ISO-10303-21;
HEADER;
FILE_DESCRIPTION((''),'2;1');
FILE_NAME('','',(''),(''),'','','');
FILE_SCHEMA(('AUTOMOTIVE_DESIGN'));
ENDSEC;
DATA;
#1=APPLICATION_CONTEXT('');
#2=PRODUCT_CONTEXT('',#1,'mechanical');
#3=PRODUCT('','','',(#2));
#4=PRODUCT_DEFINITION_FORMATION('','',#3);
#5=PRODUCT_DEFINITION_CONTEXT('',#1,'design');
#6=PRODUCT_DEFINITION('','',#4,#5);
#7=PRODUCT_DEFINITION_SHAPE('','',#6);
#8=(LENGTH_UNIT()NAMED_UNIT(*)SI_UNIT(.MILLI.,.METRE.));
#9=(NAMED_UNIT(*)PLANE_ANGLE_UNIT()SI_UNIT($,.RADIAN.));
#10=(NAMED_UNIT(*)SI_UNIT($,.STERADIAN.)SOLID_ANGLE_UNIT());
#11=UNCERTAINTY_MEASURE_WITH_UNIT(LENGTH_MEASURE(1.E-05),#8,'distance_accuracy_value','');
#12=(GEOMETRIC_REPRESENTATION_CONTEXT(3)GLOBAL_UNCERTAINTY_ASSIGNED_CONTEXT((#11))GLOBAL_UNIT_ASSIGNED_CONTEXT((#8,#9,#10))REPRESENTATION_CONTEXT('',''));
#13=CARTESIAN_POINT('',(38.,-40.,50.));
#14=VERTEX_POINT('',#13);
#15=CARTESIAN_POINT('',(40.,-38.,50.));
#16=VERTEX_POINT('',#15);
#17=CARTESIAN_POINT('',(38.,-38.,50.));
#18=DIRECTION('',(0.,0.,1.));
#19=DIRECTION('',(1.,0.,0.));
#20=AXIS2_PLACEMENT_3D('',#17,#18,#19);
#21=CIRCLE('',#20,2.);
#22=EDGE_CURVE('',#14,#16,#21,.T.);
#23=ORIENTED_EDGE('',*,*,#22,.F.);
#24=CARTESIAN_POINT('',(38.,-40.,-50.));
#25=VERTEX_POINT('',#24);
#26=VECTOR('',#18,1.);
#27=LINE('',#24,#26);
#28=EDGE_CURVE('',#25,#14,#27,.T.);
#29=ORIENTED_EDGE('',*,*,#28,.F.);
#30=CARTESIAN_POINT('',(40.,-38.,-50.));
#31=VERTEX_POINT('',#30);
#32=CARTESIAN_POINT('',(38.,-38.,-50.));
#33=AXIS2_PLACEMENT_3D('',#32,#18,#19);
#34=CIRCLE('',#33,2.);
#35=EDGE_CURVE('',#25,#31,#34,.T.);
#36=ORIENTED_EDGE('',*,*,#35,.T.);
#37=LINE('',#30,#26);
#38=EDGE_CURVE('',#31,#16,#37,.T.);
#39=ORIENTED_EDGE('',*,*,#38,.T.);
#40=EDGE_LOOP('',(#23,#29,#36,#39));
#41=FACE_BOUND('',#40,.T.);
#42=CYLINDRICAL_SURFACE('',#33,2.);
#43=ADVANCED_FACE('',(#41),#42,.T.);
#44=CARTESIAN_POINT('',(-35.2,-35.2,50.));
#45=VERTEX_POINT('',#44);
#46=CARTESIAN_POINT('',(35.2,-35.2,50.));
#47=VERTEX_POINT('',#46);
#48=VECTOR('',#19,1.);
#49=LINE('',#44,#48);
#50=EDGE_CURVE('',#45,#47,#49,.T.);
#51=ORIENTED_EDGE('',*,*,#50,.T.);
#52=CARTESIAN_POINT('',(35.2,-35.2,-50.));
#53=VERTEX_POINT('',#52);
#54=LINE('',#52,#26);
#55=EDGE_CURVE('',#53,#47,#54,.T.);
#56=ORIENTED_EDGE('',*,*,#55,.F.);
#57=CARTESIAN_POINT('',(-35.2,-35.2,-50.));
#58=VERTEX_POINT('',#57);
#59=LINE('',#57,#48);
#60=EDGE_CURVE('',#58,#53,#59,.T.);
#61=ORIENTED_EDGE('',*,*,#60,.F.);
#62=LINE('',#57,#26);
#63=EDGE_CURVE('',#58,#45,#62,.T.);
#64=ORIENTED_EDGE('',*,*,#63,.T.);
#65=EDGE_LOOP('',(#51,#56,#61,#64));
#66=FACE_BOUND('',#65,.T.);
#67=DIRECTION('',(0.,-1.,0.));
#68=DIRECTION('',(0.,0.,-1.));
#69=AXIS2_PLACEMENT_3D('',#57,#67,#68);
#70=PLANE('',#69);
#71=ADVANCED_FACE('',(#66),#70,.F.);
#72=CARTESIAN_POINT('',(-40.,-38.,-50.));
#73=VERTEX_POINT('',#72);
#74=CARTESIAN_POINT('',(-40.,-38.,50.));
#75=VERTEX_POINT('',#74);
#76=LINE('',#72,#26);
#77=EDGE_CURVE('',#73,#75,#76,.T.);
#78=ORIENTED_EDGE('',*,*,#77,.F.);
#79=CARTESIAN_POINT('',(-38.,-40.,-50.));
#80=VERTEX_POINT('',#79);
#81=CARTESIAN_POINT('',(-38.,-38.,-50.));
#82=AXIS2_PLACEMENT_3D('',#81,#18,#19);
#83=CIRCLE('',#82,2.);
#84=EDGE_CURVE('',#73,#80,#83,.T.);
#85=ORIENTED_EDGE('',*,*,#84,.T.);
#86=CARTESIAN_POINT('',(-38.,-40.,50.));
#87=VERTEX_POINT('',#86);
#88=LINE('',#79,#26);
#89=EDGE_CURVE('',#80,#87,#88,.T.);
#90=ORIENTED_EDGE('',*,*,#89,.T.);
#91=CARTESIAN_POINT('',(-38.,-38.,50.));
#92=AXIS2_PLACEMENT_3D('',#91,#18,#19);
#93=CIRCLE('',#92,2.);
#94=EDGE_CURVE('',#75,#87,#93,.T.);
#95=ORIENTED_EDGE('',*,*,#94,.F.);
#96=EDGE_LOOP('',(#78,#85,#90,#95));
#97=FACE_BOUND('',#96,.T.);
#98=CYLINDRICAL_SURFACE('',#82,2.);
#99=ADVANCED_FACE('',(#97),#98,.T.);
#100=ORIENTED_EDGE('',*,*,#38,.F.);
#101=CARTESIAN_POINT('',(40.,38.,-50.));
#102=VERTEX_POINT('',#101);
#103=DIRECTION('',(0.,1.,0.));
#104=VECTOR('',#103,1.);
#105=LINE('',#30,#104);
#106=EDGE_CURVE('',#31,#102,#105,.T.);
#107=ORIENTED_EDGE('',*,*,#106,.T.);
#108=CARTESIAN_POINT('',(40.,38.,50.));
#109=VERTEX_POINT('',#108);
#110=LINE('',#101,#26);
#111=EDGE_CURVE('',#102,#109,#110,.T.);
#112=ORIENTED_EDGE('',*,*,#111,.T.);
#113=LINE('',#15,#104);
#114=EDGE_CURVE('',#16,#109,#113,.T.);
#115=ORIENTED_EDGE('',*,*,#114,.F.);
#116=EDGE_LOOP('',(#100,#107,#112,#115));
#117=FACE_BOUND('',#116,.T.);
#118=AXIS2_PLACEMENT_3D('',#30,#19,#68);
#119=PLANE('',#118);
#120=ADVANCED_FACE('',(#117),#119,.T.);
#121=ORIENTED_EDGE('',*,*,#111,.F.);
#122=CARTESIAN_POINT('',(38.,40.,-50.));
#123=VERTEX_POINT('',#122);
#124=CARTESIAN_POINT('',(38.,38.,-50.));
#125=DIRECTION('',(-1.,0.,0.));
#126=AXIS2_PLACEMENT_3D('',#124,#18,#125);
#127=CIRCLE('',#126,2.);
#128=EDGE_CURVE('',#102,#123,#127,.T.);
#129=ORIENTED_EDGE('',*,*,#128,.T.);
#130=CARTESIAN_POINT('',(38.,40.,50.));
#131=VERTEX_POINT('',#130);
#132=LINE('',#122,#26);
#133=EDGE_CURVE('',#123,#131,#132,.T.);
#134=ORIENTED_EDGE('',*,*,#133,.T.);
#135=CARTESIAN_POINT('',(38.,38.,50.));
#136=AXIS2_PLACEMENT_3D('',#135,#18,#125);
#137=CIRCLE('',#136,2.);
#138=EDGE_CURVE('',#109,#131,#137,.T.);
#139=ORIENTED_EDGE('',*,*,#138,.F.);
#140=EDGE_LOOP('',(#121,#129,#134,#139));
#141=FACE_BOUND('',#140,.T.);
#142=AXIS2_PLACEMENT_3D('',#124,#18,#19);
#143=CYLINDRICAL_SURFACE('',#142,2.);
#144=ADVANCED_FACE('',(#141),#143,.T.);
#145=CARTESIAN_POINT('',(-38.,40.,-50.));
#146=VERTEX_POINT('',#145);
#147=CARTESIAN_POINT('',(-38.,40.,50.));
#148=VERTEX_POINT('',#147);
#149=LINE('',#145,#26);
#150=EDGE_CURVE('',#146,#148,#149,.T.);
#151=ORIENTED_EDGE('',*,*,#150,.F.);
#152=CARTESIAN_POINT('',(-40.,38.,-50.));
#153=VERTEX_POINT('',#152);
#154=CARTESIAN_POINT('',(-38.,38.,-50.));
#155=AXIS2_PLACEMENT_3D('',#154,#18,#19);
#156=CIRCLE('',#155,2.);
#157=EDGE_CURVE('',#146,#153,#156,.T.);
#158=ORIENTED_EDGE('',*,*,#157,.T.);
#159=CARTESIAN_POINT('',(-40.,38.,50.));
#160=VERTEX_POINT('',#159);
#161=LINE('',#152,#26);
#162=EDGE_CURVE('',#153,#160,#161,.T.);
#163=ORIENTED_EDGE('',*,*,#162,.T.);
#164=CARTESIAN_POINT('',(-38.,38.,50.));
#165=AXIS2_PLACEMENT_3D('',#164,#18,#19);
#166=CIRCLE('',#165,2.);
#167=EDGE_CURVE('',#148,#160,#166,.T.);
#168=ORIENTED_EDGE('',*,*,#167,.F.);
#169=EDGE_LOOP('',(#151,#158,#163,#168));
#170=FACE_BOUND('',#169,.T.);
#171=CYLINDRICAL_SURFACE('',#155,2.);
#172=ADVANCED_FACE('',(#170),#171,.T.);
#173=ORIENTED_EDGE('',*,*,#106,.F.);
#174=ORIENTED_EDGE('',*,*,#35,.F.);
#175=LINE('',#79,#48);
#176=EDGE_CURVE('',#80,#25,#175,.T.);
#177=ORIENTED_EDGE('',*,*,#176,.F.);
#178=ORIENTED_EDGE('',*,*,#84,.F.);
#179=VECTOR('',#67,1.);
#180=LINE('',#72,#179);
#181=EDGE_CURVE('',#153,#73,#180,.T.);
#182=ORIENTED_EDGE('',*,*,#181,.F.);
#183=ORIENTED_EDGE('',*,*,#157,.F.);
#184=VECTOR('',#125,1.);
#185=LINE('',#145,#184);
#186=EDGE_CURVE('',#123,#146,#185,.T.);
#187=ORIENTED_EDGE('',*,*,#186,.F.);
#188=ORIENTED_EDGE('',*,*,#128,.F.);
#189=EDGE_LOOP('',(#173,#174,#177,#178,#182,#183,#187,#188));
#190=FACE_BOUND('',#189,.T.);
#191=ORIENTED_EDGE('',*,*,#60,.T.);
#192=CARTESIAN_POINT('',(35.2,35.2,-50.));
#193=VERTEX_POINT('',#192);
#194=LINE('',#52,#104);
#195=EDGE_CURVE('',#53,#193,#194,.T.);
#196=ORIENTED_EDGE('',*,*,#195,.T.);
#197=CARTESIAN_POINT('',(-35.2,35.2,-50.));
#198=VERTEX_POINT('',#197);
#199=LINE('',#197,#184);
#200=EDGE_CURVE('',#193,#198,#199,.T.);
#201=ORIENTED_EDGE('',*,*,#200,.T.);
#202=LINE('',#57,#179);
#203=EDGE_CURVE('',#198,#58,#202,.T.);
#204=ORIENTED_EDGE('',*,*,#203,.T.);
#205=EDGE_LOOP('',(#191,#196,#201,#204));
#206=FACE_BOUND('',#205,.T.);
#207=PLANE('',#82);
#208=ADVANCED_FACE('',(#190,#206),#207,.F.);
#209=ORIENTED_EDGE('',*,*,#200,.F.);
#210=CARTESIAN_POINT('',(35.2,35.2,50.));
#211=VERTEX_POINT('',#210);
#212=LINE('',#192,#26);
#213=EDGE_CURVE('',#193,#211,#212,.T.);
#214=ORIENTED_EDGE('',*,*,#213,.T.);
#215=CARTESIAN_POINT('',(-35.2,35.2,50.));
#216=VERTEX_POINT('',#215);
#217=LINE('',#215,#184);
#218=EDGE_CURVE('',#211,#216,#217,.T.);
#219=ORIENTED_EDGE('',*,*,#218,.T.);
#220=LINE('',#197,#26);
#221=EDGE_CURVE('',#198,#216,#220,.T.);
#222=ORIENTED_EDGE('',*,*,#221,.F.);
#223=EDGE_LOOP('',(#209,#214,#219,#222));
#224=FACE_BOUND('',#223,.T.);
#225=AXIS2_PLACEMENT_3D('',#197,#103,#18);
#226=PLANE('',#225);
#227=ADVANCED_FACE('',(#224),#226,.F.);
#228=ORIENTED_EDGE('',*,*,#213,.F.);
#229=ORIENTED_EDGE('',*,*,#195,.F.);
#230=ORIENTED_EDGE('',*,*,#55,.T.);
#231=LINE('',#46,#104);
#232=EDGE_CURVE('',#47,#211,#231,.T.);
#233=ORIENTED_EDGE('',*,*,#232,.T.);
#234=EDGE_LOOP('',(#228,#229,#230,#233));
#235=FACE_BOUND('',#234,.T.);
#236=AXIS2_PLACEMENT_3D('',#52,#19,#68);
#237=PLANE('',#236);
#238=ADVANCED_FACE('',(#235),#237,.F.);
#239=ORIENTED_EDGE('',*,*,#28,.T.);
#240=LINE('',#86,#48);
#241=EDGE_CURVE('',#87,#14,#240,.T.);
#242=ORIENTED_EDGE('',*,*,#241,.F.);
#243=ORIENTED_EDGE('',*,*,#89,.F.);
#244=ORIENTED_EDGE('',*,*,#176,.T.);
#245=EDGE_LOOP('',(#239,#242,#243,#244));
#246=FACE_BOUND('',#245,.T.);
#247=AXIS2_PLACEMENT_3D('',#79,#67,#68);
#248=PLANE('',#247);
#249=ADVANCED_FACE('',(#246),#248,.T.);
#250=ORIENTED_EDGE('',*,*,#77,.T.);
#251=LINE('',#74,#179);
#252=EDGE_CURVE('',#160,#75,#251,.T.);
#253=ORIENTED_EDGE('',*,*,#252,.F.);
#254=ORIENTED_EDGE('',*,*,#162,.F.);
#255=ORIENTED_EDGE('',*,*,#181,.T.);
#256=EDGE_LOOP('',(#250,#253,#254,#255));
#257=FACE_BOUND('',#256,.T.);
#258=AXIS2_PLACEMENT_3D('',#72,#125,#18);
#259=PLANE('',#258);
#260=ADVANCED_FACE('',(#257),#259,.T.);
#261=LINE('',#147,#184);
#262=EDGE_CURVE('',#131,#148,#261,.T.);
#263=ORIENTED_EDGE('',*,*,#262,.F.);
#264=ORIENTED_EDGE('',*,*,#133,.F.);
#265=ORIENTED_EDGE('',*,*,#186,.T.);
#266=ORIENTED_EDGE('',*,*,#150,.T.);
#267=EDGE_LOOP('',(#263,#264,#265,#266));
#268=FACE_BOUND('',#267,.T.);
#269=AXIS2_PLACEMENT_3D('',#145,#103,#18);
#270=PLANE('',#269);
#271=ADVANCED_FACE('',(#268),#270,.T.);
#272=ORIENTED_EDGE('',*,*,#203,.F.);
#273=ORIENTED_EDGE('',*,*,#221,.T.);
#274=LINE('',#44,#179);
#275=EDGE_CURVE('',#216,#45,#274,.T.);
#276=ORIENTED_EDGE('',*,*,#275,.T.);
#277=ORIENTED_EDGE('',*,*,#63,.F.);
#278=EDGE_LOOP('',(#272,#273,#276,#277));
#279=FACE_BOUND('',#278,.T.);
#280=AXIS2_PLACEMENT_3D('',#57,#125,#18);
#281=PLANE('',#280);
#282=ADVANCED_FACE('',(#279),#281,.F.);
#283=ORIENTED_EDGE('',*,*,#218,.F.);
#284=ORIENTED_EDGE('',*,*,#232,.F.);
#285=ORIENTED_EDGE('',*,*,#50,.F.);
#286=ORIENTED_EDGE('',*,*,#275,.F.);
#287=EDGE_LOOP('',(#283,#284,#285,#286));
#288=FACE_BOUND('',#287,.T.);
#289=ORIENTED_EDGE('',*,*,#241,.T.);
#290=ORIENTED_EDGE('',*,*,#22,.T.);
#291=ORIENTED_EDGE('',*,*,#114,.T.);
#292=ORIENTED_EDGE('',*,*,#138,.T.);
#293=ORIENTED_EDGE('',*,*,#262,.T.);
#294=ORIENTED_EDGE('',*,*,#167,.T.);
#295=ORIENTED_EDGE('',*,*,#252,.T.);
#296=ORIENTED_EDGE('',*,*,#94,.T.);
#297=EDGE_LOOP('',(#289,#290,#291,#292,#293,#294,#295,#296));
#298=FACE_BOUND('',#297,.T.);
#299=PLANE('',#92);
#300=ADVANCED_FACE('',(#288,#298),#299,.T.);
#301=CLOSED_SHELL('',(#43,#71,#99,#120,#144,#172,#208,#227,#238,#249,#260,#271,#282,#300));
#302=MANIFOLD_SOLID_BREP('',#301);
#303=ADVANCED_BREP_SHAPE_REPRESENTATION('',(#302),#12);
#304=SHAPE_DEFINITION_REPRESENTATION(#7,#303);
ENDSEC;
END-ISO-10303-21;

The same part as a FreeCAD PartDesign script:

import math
import FreeCAD as App
import Part
import Sketcher
Q = App.Units.Quantity


def add_polygon(sketch, points):
    """Adds a closed chain of lines whose ends are joined by coincident constraints."""
    first, n = sketch.GeometryCount, len(points)
    for a, b in zip(points, points[1:] + points[:1]):
        sketch.addGeometry(Part.LineSegment(App.Vector(*a, 0), App.Vector(*b, 0)), False)
    for i in range(n):
        sketch.addConstraint(Sketcher.Constraint("Coincident", first + i, 2, first + (i + 1) % n, 1))

doc = App.newDocument("Part")
body = doc.addObject("PartDesign::Body", "Body")

sketch1 = body.newObject("Sketcher::SketchObject", "Sketch")
sketch1.AttachmentSupport = (doc.getObject("XY_Plane"), [""])
sketch1.MapMode = "FlatFace"
sketch1.addGeometry(Part.LineSegment(App.Vector(-38, -40, 0), App.Vector(38, -40, 0)), False)
sketch1.addGeometry(Part.ArcOfCircle(Part.Circle(App.Vector(38, -38, 0), App.Vector(0, 0, 1), 2), math.radians(-90), math.radians(0)), False)
sketch1.addGeometry(Part.LineSegment(App.Vector(40, -38, 0), App.Vector(40, 38, 0)), False)
sketch1.addGeometry(Part.ArcOfCircle(Part.Circle(App.Vector(38, 38, 0), App.Vector(0, 0, 1), 2), math.radians(0), math.radians(90)), False)
sketch1.addGeometry(Part.LineSegment(App.Vector(38, 40, 0), App.Vector(-38, 40, 0)), False)
sketch1.addGeometry(Part.ArcOfCircle(Part.Circle(App.Vector(-38, 38, 0), App.Vector(0, 0, 1), 2), math.radians(90), math.radians(180)), False)
sketch1.addGeometry(Part.LineSegment(App.Vector(-40, 38, 0), App.Vector(-40, -38, 0)), False)
sketch1.addGeometry(Part.ArcOfCircle(Part.Circle(App.Vector(-38, -38, 0), App.Vector(0, 0, 1), 2), math.radians(-180), math.radians(-90)), False)
add_polygon(sketch1, [(35.2, -35.2), (-35.2, -35.2), (-35.2, 35.2), (35.2, 35.2)])
sketch1.addConstraint([
    Sketcher.Constraint("Tangent", 0, 2, 1, 1),
    Sketcher.Constraint("Tangent", 1, 2, 2, 1),
    Sketcher.Constraint("Tangent", 2, 2, 3, 1),
    Sketcher.Constraint("Tangent", 3, 2, 4, 1),
    Sketcher.Constraint("Tangent", 4, 2, 5, 1),
    Sketcher.Constraint("Tangent", 5, 2, 6, 1),
    Sketcher.Constraint("Tangent", 6, 2, 7, 1),
    Sketcher.Constraint("Tangent", 7, 2, 0, 1),
    Sketcher.Constraint("Horizontal", 0),
    Sketcher.Constraint("Vertical", 2),
    Sketcher.Constraint("Horizontal", 4),
    Sketcher.Constraint("Vertical", 6),
    Sketcher.Constraint("Horizontal", 8),
    Sketcher.Constraint("Vertical", 9),
    Sketcher.Constraint("Horizontal", 10),
    Sketcher.Constraint("Vertical", 11),
    Sketcher.Constraint("Equal", 1, 3),
    Sketcher.Constraint("Equal", 3, 5),
    Sketcher.Constraint("Equal", 5, 7),
    Sketcher.Constraint("Symmetric", 1, 3, 5, 3, -1, 1),
    Sketcher.Constraint("Symmetric", 8, 2, 10, 2, -1, 1),
    Sketcher.Constraint("Equal", 4, 2),
    Sketcher.Constraint("Equal", 10, 9),
    Sketcher.Constraint("Radius", 1, Q("2 mm")),
    Sketcher.Constraint("DistanceX", 0, 1, 0, 2, Q("76 mm")),
    Sketcher.Constraint("DistanceX", 8, 2, 8, 1, Q("70.4 mm")),
])
pad1 = body.newObject("PartDesign::Pad", "Pad")
pad1.Profile = sketch1
pad1.Length = 100
pad1.Midplane = True

doc.recompute()
